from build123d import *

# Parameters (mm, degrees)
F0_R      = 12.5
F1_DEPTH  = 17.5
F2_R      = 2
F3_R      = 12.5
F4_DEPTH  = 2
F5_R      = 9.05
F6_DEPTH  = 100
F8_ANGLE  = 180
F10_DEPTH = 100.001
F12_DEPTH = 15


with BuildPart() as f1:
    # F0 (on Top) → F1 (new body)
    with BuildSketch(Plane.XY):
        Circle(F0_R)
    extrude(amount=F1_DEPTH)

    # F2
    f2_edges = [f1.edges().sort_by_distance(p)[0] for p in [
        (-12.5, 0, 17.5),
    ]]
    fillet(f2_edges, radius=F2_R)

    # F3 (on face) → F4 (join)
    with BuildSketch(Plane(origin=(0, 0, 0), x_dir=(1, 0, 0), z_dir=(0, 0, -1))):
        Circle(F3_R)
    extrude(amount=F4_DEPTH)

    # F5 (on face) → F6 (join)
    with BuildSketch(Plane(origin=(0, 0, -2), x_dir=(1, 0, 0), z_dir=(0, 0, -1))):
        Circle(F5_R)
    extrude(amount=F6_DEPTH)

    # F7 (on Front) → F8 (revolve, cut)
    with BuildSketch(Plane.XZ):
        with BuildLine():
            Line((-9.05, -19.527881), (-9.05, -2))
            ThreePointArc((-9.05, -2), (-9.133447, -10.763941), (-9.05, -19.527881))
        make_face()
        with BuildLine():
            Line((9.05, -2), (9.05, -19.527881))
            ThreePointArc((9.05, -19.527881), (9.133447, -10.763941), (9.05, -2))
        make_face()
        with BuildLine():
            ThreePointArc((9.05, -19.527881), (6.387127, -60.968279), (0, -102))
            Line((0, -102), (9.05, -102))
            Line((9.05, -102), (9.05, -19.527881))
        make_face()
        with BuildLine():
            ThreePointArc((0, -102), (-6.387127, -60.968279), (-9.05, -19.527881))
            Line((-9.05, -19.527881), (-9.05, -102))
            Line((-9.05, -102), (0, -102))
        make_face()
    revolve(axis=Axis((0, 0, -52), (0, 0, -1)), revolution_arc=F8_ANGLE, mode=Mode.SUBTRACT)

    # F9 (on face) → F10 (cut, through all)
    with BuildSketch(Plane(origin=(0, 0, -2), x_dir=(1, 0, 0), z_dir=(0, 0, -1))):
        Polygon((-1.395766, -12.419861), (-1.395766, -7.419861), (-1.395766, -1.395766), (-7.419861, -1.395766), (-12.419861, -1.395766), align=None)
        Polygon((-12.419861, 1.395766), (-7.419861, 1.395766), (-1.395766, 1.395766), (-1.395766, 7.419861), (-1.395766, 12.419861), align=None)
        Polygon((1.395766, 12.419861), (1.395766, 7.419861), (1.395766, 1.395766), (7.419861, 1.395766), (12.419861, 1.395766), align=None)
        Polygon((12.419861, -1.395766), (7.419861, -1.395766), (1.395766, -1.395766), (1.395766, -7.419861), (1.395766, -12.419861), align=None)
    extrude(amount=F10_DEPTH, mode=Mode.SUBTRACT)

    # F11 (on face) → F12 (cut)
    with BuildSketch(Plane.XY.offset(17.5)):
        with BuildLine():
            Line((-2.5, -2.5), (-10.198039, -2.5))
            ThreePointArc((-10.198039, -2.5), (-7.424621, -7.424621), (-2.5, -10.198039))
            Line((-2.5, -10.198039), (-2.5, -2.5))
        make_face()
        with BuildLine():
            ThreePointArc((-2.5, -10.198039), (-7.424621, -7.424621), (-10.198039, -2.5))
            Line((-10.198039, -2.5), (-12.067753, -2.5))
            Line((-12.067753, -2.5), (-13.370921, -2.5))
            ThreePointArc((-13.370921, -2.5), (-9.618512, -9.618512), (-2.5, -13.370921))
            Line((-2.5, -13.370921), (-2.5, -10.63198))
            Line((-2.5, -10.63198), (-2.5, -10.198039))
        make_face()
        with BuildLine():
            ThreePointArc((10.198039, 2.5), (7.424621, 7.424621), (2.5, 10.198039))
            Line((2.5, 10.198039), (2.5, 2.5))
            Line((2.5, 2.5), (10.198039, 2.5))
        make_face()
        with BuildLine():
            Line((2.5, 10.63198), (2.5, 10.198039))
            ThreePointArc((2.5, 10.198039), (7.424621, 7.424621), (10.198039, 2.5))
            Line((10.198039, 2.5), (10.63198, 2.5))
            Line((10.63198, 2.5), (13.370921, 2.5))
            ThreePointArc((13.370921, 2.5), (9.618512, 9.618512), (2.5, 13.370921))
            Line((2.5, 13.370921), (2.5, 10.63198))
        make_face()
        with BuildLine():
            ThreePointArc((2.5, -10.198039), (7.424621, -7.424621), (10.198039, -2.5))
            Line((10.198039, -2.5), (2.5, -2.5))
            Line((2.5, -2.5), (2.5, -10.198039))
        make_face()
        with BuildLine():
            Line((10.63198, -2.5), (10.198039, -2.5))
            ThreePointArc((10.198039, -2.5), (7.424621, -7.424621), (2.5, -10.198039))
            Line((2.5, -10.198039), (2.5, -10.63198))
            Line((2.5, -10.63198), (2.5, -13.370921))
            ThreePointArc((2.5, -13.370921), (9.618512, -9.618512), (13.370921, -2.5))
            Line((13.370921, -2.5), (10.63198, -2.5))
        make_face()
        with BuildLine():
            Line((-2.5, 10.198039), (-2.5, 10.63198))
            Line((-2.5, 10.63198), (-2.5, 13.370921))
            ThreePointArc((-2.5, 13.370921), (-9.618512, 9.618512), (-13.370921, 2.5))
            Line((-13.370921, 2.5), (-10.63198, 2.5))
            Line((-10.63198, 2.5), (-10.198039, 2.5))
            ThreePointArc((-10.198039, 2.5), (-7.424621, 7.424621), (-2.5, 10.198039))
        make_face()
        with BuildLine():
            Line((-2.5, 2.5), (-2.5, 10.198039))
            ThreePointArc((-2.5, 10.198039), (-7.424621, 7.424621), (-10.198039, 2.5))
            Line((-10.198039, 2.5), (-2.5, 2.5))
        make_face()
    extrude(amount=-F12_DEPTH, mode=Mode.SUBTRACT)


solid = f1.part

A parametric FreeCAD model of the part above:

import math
import FreeCAD as App
import Part
import Sketcher

V = App.Vector
Q = App.Units.Quantity


def edges_at(feature, points):
    """Names of the edges that pass closest to the given points."""
    edges = feature.Shape.Edges
    near = lambda p: min(range(len(edges)), key=lambda i: edges[i].distToShape(Part.Vertex(*p))[0])
    return sorted({f"Edge{near(p) + 1}" for p in points})


def add_polygon(sketch, points):
    """Adds a closed chain of lines whose ends are joined by coincident constraints."""
    first, n = sketch.GeometryCount, len(points)
    for a, b in zip(points, points[1:] + points[:1]):
        sketch.addGeometry(Part.LineSegment(App.Vector(*a, 0), App.Vector(*b, 0)), False)
    for i in range(n):
        sketch.addConstraint(Sketcher.Constraint("Coincident", first + i, 2, first + (i + 1) % n, 1))

doc = App.newDocument("Part")
params = doc.addObject("Spreadsheet::Sheet", "Params")
for row, (alias, value) in enumerate([
    ("sketch1_diameter", "25 mm"),
    ("pad1_length", "17.5 mm"),
    ("fillet_radius", "2 mm"),
    ("sketch2_diameter", "25 mm"),
    ("pad2_length", "2 mm"),
    ("sketch3_diameter", "18.1 mm"),
    ("pad3_length", "100 mm"),
    ("sketch4_width", "9.05 mm"),
    ("groove_angle", "180 deg"),
    ("pocket2_length", "15 mm"),
], start=1):
    params.set(f"A{row}", alias)
    params.set(f"B{row}", "=" + value)
    params.setAlias(f"B{row}", alias)

body = doc.addObject("PartDesign::Body", "Body")

# Sketch on XY plane
sketch1 = body.newObject("Sketcher::SketchObject", "Sketch")
sketch1.AttachmentSupport = (doc.getObject("XY_Plane"), [""])
sketch1.MapMode = "FlatFace"
sketch1.addGeometry(Part.Circle(V(0, 0, 0), V(0, 0, 1), 12.5), False)
sketch1.addConstraint(Sketcher.Constraint("Coincident", 0, 3, -1, 1))
sketch1.addConstraint(Sketcher.Constraint("Diameter", 0, Q("25 mm")))
sketch1.setExpression("Constraints[1]", "Params.sketch1_diameter")
pad1 = body.newObject("PartDesign::Pad", "Pad")
pad1.Profile = sketch1
pad1.setExpression("Length", "Params.pad1_length")
doc.recompute()

fillet = body.newObject("PartDesign::Fillet", "Fillet")
fillet.Base = (pad1, edges_at(pad1, [(-12.5, 0, 17.5)]))
fillet.setExpression("Radius", "Params.fillet_radius")

# Sketch on XY plane
sketch2 = body.newObject("Sketcher::SketchObject", "Sketch001")
sketch2.AttachmentSupport = (doc.getObject("XY_Plane"), [""])
sketch2.MapMode = "FlatFace"
sketch2.addGeometry(Part.Circle(V(0, 0, 0), V(0, 0, 1), 12.5), False)
sketch2.addConstraint(Sketcher.Constraint("Coincident", 0, 3, -1, 1))
sketch2.addConstraint(Sketcher.Constraint("Diameter", 0, Q("25 mm")))
sketch2.setExpression("Constraints[1]", "Params.sketch2_diameter")
pad2 = body.newObject("PartDesign::Pad", "Pad001")
pad2.Profile = sketch2
pad2.setExpression("Length", "Params.pad2_length")
pad2.Reversed = True

# Sketch on XY plane
sketch3 = body.newObject("Sketcher::SketchObject", "Sketch002")
sketch3.AttachmentSupport = (doc.getObject("XY_Plane"), [""])
sketch3.MapMode = "FlatFace"
sketch3.AttachmentOffset = App.Placement(V(0, 0, -2), App.Rotation())
sketch3.addGeometry(Part.Circle(V(0, 0, 0), V(0, 0, 1), 9.05), False)
sketch3.addConstraint(Sketcher.Constraint("Coincident", 0, 3, -1, 1))
sketch3.addConstraint(Sketcher.Constraint("Diameter", 0, Q("18.1 mm")))
sketch3.setExpression("Constraints[1]", "Params.sketch3_diameter")
pad3 = body.newObject("PartDesign::Pad", "Pad002")
pad3.Profile = sketch3
pad3.setExpression("Length", "Params.pad3_length")
pad3.Reversed = True

# Sketch on XZ plane
sketch4 = body.newObject("Sketcher::SketchObject", "Sketch003")
sketch4.AttachmentSupport = (doc.getObject("XZ_Plane"), [""])
sketch4.MapMode = "FlatFace"
sketch4.addGeometry(Part.LineSegment(V(-9.05, -19.527881, 0), V(-9.05, -2, 0)), False)
sketch4.addGeometry(Part.ArcOfCircle(Part.Circle(V(451.120466, -10.763941, 0), V(0, 0, 1), 460.253913), math.radians(178.908935), math.radians(181.091065)), False)
sketch4.addGeometry(Part.LineSegment(V(9.05, -2, 0), V(9.05, -19.527881, 0)), False)
sketch4.addGeometry(Part.ArcOfCircle(Part.Circle(V(-451.120466, -10.763941, 0), V(0, 0, 1), 460.253913), math.radians(-1.091065), math.radians(1.091065)), False)
sketch4.addGeometry(Part.ArcOfCircle(Part.Circle(V(-451.121986, -10.763949, 0), V(0, 0, 1), 460.255433), math.radians(-11.433425), math.radians(-1.091061)), False)
sketch4.addGeometry(Part.LineSegment(V(0, -102, 0), V(9.05, -102, 0)), False)
sketch4.addGeometry(Part.LineSegment(V(9.05, -102, 0), V(9.05, -19.527881, 0)), False)
sketch4.addGeometry(Part.ArcOfCircle(Part.Circle(V(451.121986, -10.763949, 0), V(0, 0, 1), 460.255433), math.radians(-178.908939), math.radians(-168.566575)), False)
sketch4.addGeometry(Part.LineSegment(V(-9.05, -19.527881, 0), V(-9.05, -102, 0)), False)
sketch4.addGeometry(Part.LineSegment(V(-9.05, -102, 0), V(0, -102, 0)), False)
sketch4.addConstraint(Sketcher.Constraint("Coincident", 0, 1, 1, 2))
sketch4.addConstraint(Sketcher.Constraint("Coincident", 1, 1, 0, 2))
sketch4.addConstraint(Sketcher.Constraint("Coincident", 2, 1, 3, 2))
sketch4.addConstraint(Sketcher.Constraint("Coincident", 3, 1, 2, 2))
sketch4.addConstraint(Sketcher.Constraint("Coincident", 4, 1, 5, 1))
sketch4.addConstraint(Sketcher.Constraint("Coincident", 5, 2, 6, 1))
sketch4.addConstraint(Sketcher.Constraint("Coincident", 6, 2, 4, 2))
sketch4.addConstraint(Sketcher.Constraint("Coincident", 7, 1, 8, 1))
sketch4.addConstraint(Sketcher.Constraint("Coincident", 8, 2, 9, 1))
sketch4.addConstraint(Sketcher.Constraint("Coincident", 9, 2, 7, 2))
sketch4.addConstraint(Sketcher.Constraint("Vertical", 0))
sketch4.addConstraint(Sketcher.Constraint("Vertical", 2))
sketch4.addConstraint(Sketcher.Constraint("Horizontal", 5))
sketch4.addConstraint(Sketcher.Constraint("Vertical", 6))
sketch4.addConstraint(Sketcher.Constraint("Vertical", 8))
sketch4.addConstraint(Sketcher.Constraint("Horizontal", 9))
sketch4.addConstraint(Sketcher.Constraint("Coincident", 6, 2, 3, 1))
sketch4.addConstraint(Sketcher.Constraint("Coincident", 7, 1, 0, 1))
sketch4.addConstraint(Sketcher.Constraint("Equal", 1, 3))
sketch4.addConstraint(Sketcher.Constraint("Equal", 4, 7))
sketch4.addConstraint(Sketcher.Constraint("Symmetric", 1, 3, 3, 3, -2))
sketch4.addConstraint(Sketcher.Constraint("Symmetric", 5, 2, 8, 2, -2))
sketch4.addConstraint(Sketcher.Constraint("PointOnObject", 4, 1, -2))
sketch4.addConstraint(Sketcher.Constraint("PointOnObject", 9, 2, -2))
sketch4.addConstraint(Sketcher.Constraint("DistanceY", 2, 1, -1, 1, Q("2 mm")))
sketch4.addConstraint(Sketcher.Constraint("DistanceY", 5, 2, -1, 1, Q("102 mm")))
sketch4.addConstraint(Sketcher.Constraint("DistanceX", 5, 1, 5, 2, Q("9.05 mm")))
sketch4.addConstraint(Sketcher.Constraint("Radius", 1, Q("460.253913 mm")))
sketch4.addConstraint(Sketcher.Constraint("Radius", 4, Q("460.255433 mm")))
sketch4.addConstraint(Sketcher.Constraint("DistanceY", 0, 1, 0, 2, Q("17.527881 mm")))
sketch4.setExpression("Constraints[26]", "Params.sketch4_width")
groove = body.newObject("PartDesign::Groove", "Groove")
groove.Profile = sketch4
groove.ReferenceAxis = (sketch4, ["V_Axis"])
groove.setExpression("Angle", "Params.groove_angle")
groove.Reversed = True

# Sketch on XY plane
sketch5 = body.newObject("Sketcher::SketchObject", "Sketch004")
sketch5.AttachmentSupport = (doc.getObject("XY_Plane"), [""])
sketch5.MapMode = "FlatFace"
sketch5.AttachmentOffset = App.Placement(V(0, 0, -2), App.Rotation())
add_polygon(sketch5, [(-1.395766, 12.419861), (-1.395766, 1.395766), (-12.419861, 1.395766)])  # lines 0-2
add_polygon(sketch5, [(-12.419861, -1.395766), (-1.395766, -1.395766), (-1.395766, -12.419861)])  # lines 3-5
add_polygon(sketch5, [(1.395766, -12.419861), (1.395766, -1.395766), (12.419861, -1.395766)])  # lines 6-8
add_polygon(sketch5, [(12.419861, 1.395766), (1.395766, 1.395766), (1.395766, 12.419861)])  # lines 9-11
sketch5.addConstraint(Sketcher.Constraint("Vertical", 0))
sketch5.addConstraint(Sketcher.Constraint("Horizontal", 1))
sketch5.addConstraint(Sketcher.Constraint("Horizontal", 3))
sketch5.addConstraint(Sketcher.Constraint("Vertical", 4))
sketch5.addConstraint(Sketcher.Constraint("Vertical", 6))
sketch5.addConstraint(Sketcher.Constraint("Horizontal", 7))
sketch5.addConstraint(Sketcher.Constraint("Horizontal", 9))
sketch5.addConstraint(Sketcher.Constraint("Vertical", 10))
sketch5.addConstraint(Sketcher.Constraint("Symmetric", 0, 2, 6, 2, -1, 1))
sketch5.addConstraint(Sketcher.Constraint("Symmetric", 3, 2, 9, 2, -1, 1))
sketch5.addConstraint(Sketcher.Constraint("Symmetric", 3, 2, 6, 2, -2))
sketch5.addConstraint(Sketcher.Constraint("Perpendicular", 2, 5))
sketch5.addConstraint(Sketcher.Constraint("Perpendicular", 5, 8))
sketch5.addConstraint(Sketcher.Constraint("Perpendicular", 8, 11))
sketch5.addConstraint(Sketcher.Constraint("Horizontal", 4, 2, 8, 2))
sketch5.addConstraint(Sketcher.Constraint("Horizontal", 2, 2, 10, 2))
sketch5.addConstraint(Sketcher.Constraint("Vertical", 1, 2, 5, 2))
sketch5.addConstraint(Sketcher.Constraint("Vertical", 7, 2, 11, 2))
sketch5.addConstraint(Sketcher.Constraint("DistanceX", 1, 2, 1, 1, Q("11.024095 mm")))
sketch5.addConstraint(Sketcher.Constraint("DistanceX", 1, 2, -1, 1, Q("12.419861 mm")))
sketch5.addConstraint(Sketcher.Constraint("DistanceY", -1, 1, 2, 2, Q("12.419861 mm")))
pocket1 = body.newObject("PartDesign::Pocket", "Pocket")
pocket1.Profile = sketch5
pocket1.Type = "ThroughAll"

# Sketch on XY plane
sketch6 = body.newObject("Sketcher::SketchObject", "Sketch005")
sketch6.AttachmentSupport = (doc.getObject("XY_Plane"), [""])
sketch6.MapMode = "FlatFace"
sketch6.AttachmentOffset = App.Placement(V(0, 0, 17.5), App.Rotation())
sketch6.addGeometry(Part.LineSegment(V(-2.5, -2.5, 0), V(-13.370921, -2.5, 0)), False)
sketch6.addGeometry(Part.ArcOfCircle(Part.Circle(V(-0.000003, -0.000003, 0), V(0, 0, 1), 13.602626), math.radians(-169.409531), math.radians(-100.590469)), False)
sketch6.addGeometry(Part.LineSegment(V(-2.5, -13.370921, 0), V(-2.5, -2.5, 0)), False)
sketch6.addGeometry(Part.LineSegment(V(2.5, 2.5, 0), V(13.370921, 2.5, 0)), False)
sketch6.addGeometry(Part.ArcOfCircle(Part.Circle(V(0.000003, 0.000003, 0), V(0, 0, 1), 13.602626), math.radians(10.590469), math.radians(79.409531)), False)
sketch6.addGeometry(Part.LineSegment(V(2.5, 13.370921, 0), V(2.5, 2.5, 0)), False)
sketch6.addGeometry(Part.LineSegment(V(2.5, -2.5, 0), V(2.5, -13.370921, 0)), False)
sketch6.addGeometry(Part.ArcOfCircle(Part.Circle(V(0.000003, -0.000003, 0), V(0, 0, 1), 13.602626), math.radians(-79.409531), math.radians(-10.590469)), False)
sketch6.addGeometry(Part.LineSegment(V(13.370921, -2.5, 0), V(2.5, -2.5, 0)), False)
sketch6.addGeometry(Part.ArcOfCircle(Part.Circle(V(-0.000003, 0.000003, 0), V(0, 0, 1), 13.602626), math.radians(100.590469), math.radians(169.409531)), False)
sketch6.addGeometry(Part.LineSegment(V(-13.370921, 2.5, 0), V(-2.5, 2.5, 0)), False)
sketch6.addGeometry(Part.LineSegment(V(-2.5, 2.5, 0), V(-2.5, 13.370921, 0)), False)
sketch6.addConstraint(Sketcher.Constraint("Coincident", 0, 2, 1, 1))
sketch6.addConstraint(Sketcher.Constraint("Coincident", 1, 2, 2, 1))
sketch6.addConstraint(Sketcher.Constraint("Coincident", 2, 2, 0, 1))
sketch6.addConstraint(Sketcher.Constraint("Coincident", 3, 2, 4, 1))
sketch6.addConstraint(Sketcher.Constraint("Coincident", 4, 2, 5, 1))
sketch6.addConstraint(Sketcher.Constraint("Coincident", 5, 2, 3, 1))
sketch6.addConstraint(Sketcher.Constraint("Coincident", 6, 2, 7, 1))
sketch6.addConstraint(Sketcher.Constraint("Coincident", 7, 2, 8, 1))
sketch6.addConstraint(Sketcher.Constraint("Coincident", 8, 2, 6, 1))
sketch6.addConstraint(Sketcher.Constraint("Coincident", 9, 2, 10, 1))
sketch6.addConstraint(Sketcher.Constraint("Coincident", 10, 2, 11, 1))
sketch6.addConstraint(Sketcher.Constraint("Coincident", 11, 2, 9, 1))
sketch6.addConstraint(Sketcher.Constraint("Horizontal", 0))
sketch6.addConstraint(Sketcher.Constraint("Vertical", 2))
sketch6.addConstraint(Sketcher.Constraint("Horizontal", 3))
sketch6.addConstraint(Sketcher.Constraint("Vertical", 5))
sketch6.addConstraint(Sketcher.Constraint("Vertical", 6))
sketch6.addConstraint(Sketcher.Constraint("Horizontal", 8))
sketch6.addConstraint(Sketcher.Constraint("Horizontal", 10))
sketch6.addConstraint(Sketcher.Constraint("Vertical", 11))
sketch6.addConstraint(Sketcher.Constraint("Coincident", 1, 3, -1, 1))
sketch6.addConstraint(Sketcher.Constraint("Coincident", 4, 3, -1, 1))
sketch6.addConstraint(Sketcher.Constraint("Coincident", 7, 3, -1, 1))
sketch6.addConstraint(Sketcher.Constraint("Coincident", 9, 3, -1, 1))
sketch6.addConstraint(Sketcher.Constraint("Equal", 1, 4))
sketch6.addConstraint(Sketcher.Constraint("Equal", 4, 7))
sketch6.addConstraint(Sketcher.Constraint("Equal", 7, 9))
sketch6.addConstraint(Sketcher.Constraint("Symmetric", 2, 2, 5, 2, -1, 1))
sketch6.addConstraint(Sketcher.Constraint("Symmetric", 8, 2, 10, 2, -1, 1))
sketch6.addConstraint(Sketcher.Constraint("Symmetric", 2, 2, 8, 2, -2))
sketch6.addConstraint(Sketcher.Constraint("Equal", 10, 2))
sketch6.addConstraint(Sketcher.Constraint("DistanceY", 2, 2, 3, 2, Q("5 mm")))
sketch6.addConstraint(Sketcher.Constraint("Radius", 1, Q("13.602626 mm")))
pocket2 = body.newObject("PartDesign::Pocket", "Pocket001")
pocket2.Profile = sketch6
pocket2.setExpression("Length", "Params.pocket2_length")

doc.recompute()
